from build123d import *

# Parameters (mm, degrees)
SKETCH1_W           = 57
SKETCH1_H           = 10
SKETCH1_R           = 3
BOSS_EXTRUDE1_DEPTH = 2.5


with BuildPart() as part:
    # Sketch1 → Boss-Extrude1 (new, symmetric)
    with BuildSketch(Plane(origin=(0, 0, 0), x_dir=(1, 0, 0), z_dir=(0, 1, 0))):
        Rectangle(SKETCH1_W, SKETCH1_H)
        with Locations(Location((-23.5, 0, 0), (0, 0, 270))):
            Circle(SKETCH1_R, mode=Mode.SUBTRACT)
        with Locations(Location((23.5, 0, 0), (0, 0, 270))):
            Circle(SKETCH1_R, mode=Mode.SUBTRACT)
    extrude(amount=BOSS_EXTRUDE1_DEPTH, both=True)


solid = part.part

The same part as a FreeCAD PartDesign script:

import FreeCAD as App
import Part
import Sketcher
from FreeCAD import Vector


def add_polygon(sketch, points):
    """Adds a closed chain of lines whose ends are joined by coincident constraints."""
    first, n = sketch.GeometryCount, len(points)
    for a, b in zip(points, points[1:] + points[:1]):
        sketch.addGeometry(Part.LineSegment(App.Vector(*a, 0), App.Vector(*b, 0)), False)
    for i in range(n):
        sketch.addConstraint(Sketcher.Constraint("Coincident", first + i, 2, first + (i + 1) % n, 1))

doc = App.newDocument("Part")
params = doc.addObject("Spreadsheet::Sheet", "Params")
for row, (alias, value) in enumerate([
    ("sketch1_diameter", "6 mm"),
    ("sketch1_width", "57 mm"),
    ("sketch1_height", "10 mm"),
    ("pad1_length", "5 mm"),
], start=1):
    params.set(f"A{row}", alias)
    params.set(f"B{row}", "=" + value)
    params.setAlias(f"B{row}", alias)

body = doc.addObject("PartDesign::Body", "Body")

# Sketch on XZ plane
sketch1 = body.newObject("Sketcher::SketchObject", "Sketch")
sketch1.AttachmentSupport = (doc.getObject("XZ_Plane"), [""])
sketch1.MapMode = "FlatFace"
add_polygon(sketch1, [(-28.5, -5), (-28.5, 5), (28.5, 5), (28.5, -5)])  # lines 0-3
sketch1.addGeometry(Part.Circle(Vector(-23.5, 0, 0), Vector(0, 0, 1), 3), False)  # 4
sketch1.addGeometry(Part.Circle(Vector(23.5, 0, 0), Vector(0, 0, 1), 3), False)  # 5
sketch1.addConstraint(Sketcher.Constraint("Vertical", 0))
sketch1.addConstraint(Sketcher.Constraint("Horizontal", 1))
sketch1.addConstraint(Sketcher.Constraint("Vertical", 2))
sketch1.addConstraint(Sketcher.Constraint("Horizontal", 3))
sketch1.addConstraint(Sketcher.Constraint("Equal", 4, 5))
sketch1.addConstraint(Sketcher.Constraint("Symmetric", 4, 3, 5, 3, -1, 1))
sketch1.addConstraint(Sketcher.Constraint("Symmetric", 0, 2, 2, 2, -1, 1))
sketch1.addConstraint(Sketcher.Constraint("PointOnObject", 4, 3, -1))
sketch1.addConstraint(Sketcher.Constraint("Diameter", 4, 6.0))
sketch1.addConstraint(Sketcher.Constraint("DistanceX", 1, 1, 1, 2, 57.0))
sketch1.addConstraint(Sketcher.Constraint("DistanceY", 0, 1, 0, 2, 10.0))
sketch1.addConstraint(Sketcher.Constraint("DistanceX", 4, 3, 5, 3, 47.0))
sketch1.setExpression("Constraints[12]", "Params.sketch1_diameter")
sketch1.setExpression("Constraints[13]", "Params.sketch1_width")
sketch1.setExpression("Constraints[14]", "Params.sketch1_height")
pad1 = body.newObject("PartDesign::Pad", "Pad")
pad1.Profile = sketch1
pad1.setExpression("Length", "Params.pad1_length")
pad1.Midplane = True

doc.recompute()
